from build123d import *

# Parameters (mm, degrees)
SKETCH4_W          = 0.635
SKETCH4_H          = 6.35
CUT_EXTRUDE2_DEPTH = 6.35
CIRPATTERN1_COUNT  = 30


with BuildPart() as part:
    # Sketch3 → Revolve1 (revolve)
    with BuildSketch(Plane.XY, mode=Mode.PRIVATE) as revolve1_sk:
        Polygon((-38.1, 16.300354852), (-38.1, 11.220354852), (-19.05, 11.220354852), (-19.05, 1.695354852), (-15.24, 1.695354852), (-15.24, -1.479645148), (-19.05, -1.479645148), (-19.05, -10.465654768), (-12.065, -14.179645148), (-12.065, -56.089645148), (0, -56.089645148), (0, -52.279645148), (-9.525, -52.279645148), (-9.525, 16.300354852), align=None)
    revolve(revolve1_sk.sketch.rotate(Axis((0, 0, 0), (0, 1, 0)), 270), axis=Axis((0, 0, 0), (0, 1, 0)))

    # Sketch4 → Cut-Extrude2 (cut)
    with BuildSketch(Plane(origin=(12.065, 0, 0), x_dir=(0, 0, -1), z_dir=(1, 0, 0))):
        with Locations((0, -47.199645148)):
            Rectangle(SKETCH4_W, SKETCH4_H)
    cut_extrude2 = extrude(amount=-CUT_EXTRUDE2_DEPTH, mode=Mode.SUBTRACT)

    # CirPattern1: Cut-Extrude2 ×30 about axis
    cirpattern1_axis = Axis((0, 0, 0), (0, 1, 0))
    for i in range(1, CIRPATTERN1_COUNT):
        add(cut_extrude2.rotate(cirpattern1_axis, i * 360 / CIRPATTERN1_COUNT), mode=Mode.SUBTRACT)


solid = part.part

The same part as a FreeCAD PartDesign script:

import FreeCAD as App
import Part
import Sketcher
from FreeCAD import Vector
Q = App.Units.Quantity

doc = App.newDocument("Part")
body = doc.addObject("PartDesign::Body", "Body")

sketch1 = body.newObject("Sketcher::SketchObject", "Sketch")
sketch1.AttachmentSupport = (doc.getObject("XY_Plane"), [""])
sketch1.MapMode = "FlatFace"
sketch1.addGeometry(Part.LineSegment(Vector(-38.1, 16.300355, 0), Vector(-38.1, 11.220355, 0)), False)
sketch1.addGeometry(Part.LineSegment(Vector(-38.1, 11.220355, 0), Vector(-19.05, 11.220355, 0)), False)
sketch1.addGeometry(Part.LineSegment(Vector(-19.05, 11.220355, 0), Vector(-19.05, 1.695355, 0)), False)
sketch1.addGeometry(Part.LineSegment(Vector(-19.05, 1.695355, 0), Vector(-15.24, 1.695355, 0)), False)
sketch1.addGeometry(Part.LineSegment(Vector(-15.24, 1.695355, 0), Vector(-15.24, -1.479645, 0)), False)
sketch1.addGeometry(Part.LineSegment(Vector(-15.24, -1.479645, 0), Vector(-19.05, -1.479645, 0)), False)
sketch1.addGeometry(Part.LineSegment(Vector(-19.05, -1.479645, 0), Vector(-19.05, -10.465655, 0)), False)
sketch1.addGeometry(Part.LineSegment(Vector(-19.05, -10.465655, 0), Vector(-12.065, -14.179645, 0)), False)
sketch1.addGeometry(Part.LineSegment(Vector(-12.065, -14.179645, 0), Vector(-12.065, -56.089645, 0)), False)
sketch1.addGeometry(Part.LineSegment(Vector(-12.065, -56.089645, 0), Vector(0, -56.089645, 0)), False)
sketch1.addGeometry(Part.LineSegment(Vector(0, -56.089645, 0), Vector(0, -52.279645, 0)), False)
sketch1.addGeometry(Part.LineSegment(Vector(0, -52.279645, 0), Vector(-9.525, -52.279645, 0)), False)
sketch1.addGeometry(Part.LineSegment(Vector(-9.525, -52.279645, 0), Vector(-9.525, 16.300355, 0)), False)
sketch1.addGeometry(Part.LineSegment(Vector(-9.525, 16.300355, 0), Vector(-38.1, 16.300355, 0)), False)
sketch1.addConstraint(Sketcher.Constraint("Coincident", 0, 2, 1, 1))
sketch1.addConstraint(Sketcher.Constraint("Coincident", 1, 2, 2, 1))
sketch1.addConstraint(Sketcher.Constraint("Coincident", 2, 2, 3, 1))
sketch1.addConstraint(Sketcher.Constraint("Coincident", 3, 2, 4, 1))
sketch1.addConstraint(Sketcher.Constraint("Coincident", 4, 2, 5, 1))
sketch1.addConstraint(Sketcher.Constraint("Coincident", 5, 2, 6, 1))
sketch1.addConstraint(Sketcher.Constraint("Coincident", 6, 2, 7, 1))
sketch1.addConstraint(Sketcher.Constraint("Coincident", 7, 2, 8, 1))
sketch1.addConstraint(Sketcher.Constraint("Coincident", 8, 2, 9, 1))
sketch1.addConstraint(Sketcher.Constraint("Coincident", 9, 2, 10, 1))
sketch1.addConstraint(Sketcher.Constraint("Coincident", 10, 2, 11, 1))
sketch1.addConstraint(Sketcher.Constraint("Coincident", 11, 2, 12, 1))
sketch1.addConstraint(Sketcher.Constraint("Coincident", 12, 2, 13, 1))
sketch1.addConstraint(Sketcher.Constraint("Coincident", 13, 2, 0, 1))
sketch1.addConstraint(Sketcher.Constraint("Vertical", 0))
sketch1.addConstraint(Sketcher.Constraint("Horizontal", 1))
sketch1.addConstraint(Sketcher.Constraint("Vertical", 2))
sketch1.addConstraint(Sketcher.Constraint("Horizontal", 3))
sketch1.addConstraint(Sketcher.Constraint("Vertical", 4))
sketch1.addConstraint(Sketcher.Constraint("Horizontal", 5))
sketch1.addConstraint(Sketcher.Constraint("Vertical", 6))
sketch1.addConstraint(Sketcher.Constraint("Vertical", 8))
sketch1.addConstraint(Sketcher.Constraint("Horizontal", 9))
sketch1.addConstraint(Sketcher.Constraint("Vertical", 10))
sketch1.addConstraint(Sketcher.Constraint("Horizontal", 11))
sketch1.addConstraint(Sketcher.Constraint("Vertical", 12))
sketch1.addConstraint(Sketcher.Constraint("Horizontal", 13))
sketch1.addConstraint(Sketcher.Constraint("PointOnObject", 9, 2, -2))
sketch1.addConstraint(Sketcher.Constraint("Vertical", 2, 2, 5, 2))
sketch1.addConstraint(Sketcher.Constraint("Equal", 11, 2))
sketch1.addConstraint(Sketcher.Constraint("Equal", 5, 10))
sketch1.addConstraint(Sketcher.Constraint("DistanceY", 0, 2, 0, 1, Q("0.2 in")))
sketch1.addConstraint(Sketcher.Constraint("DistanceY", 12, 1, 12, 2, Q("2.7 in")))
sketch1.addConstraint(Sketcher.Constraint("Angle", 7, Q("-28 deg")))
sketch1.addConstraint(Sketcher.Constraint("DistanceY", 10, 2, 4, 2, Q("2 in")))
sketch1.addConstraint(Sketcher.Constraint("DistanceX", 1, 1, 1, 2, Q("0.75 in")))
sketch1.addConstraint(Sketcher.Constraint("DistanceX", 3, 1, 3, 2, Q("0.15 in")))
sketch1.addConstraint(Sketcher.Constraint("DistanceY", 8, 2, 8, 1, Q("1.65 in")))
sketch1.addConstraint(Sketcher.Constraint("DistanceX", 0, 2, -1, 1, Q("1.5 in")))
sketch1.addConstraint(Sketcher.Constraint("DistanceX", 8, 2, 11, 2, Q("0.1 in")))
sketch1.addConstraint(Sketcher.Constraint("DistanceX", 9, 1, 9, 2, Q("0.475 in")))
sketch1.addConstraint(Sketcher.Constraint("DistanceY", -1, 1, 0, 2, 11.220355))
revolution = body.newObject("PartDesign::Revolution", "Revolution")
revolution.Profile = sketch1
revolution.ReferenceAxis = (sketch1, ["V_Axis"])
revolution.Angle = 360

sketch2 = body.newObject("Sketcher::SketchObject", "Sketch001")
sketch2.AttachmentSupport = (doc.getObject("YZ_Plane"), [""])
sketch2.MapMode = "FlatFace"
sketch2.AttachmentOffset = App.Placement(Vector(0, 0, 0.475 * 25.4), App.Rotation())
sketch2.addGeometry(Part.LineSegment(Vector(-44.024645, 0.3175, 0), Vector(-50.374645, 0.3175, 0)), False)
sketch2.addGeometry(Part.LineSegment(Vector(-50.374645, 0.3175, 0), Vector(-50.374645, -0.3175, 0)), False)
sketch2.addGeometry(Part.LineSegment(Vector(-50.374645, -0.3175, 0), Vector(-44.024645, -0.3175, 0)), False)
sketch2.addGeometry(Part.LineSegment(Vector(-44.024645, -0.3175, 0), Vector(-44.024645, 0.3175, 0)), False)
sketch2.addConstraint(Sketcher.Constraint("Coincident", 0, 2, 1, 1))
sketch2.addConstraint(Sketcher.Constraint("Coincident", 1, 2, 2, 1))
sketch2.addConstraint(Sketcher.Constraint("Coincident", 2, 2, 3, 1))
sketch2.addConstraint(Sketcher.Constraint("Coincident", 3, 2, 0, 1))
sketch2.addConstraint(Sketcher.Constraint("Horizontal", 0))
sketch2.addConstraint(Sketcher.Constraint("Vertical", 1))
sketch2.addConstraint(Sketcher.Constraint("Horizontal", 2))
sketch2.addConstraint(Sketcher.Constraint("Vertical", 3))
sketch2.addConstraint(Sketcher.Constraint("DistanceX", 0, 2, 0, 1, Q("0.25 in")))
sketch2.addConstraint(Sketcher.Constraint("DistanceY", 1, 2, 1, 1, Q("0.025 in")))
sketch2.addConstraint(Sketcher.Constraint("DistanceY", -1, 1, 0, 2, Q("0.0125 in")))
sketch2.addConstraint(Sketcher.Constraint("DistanceX", 0, 2, -1, 1, 50.374645))
pocket1 = body.newObject("PartDesign::Pocket", "Pocket")
pocket1.Profile = sketch2
pocket1.Length = Q("0.25 in")
doc.recompute()

polarpattern = body.newObject("PartDesign::PolarPattern", "PolarPattern")
polarpattern.Originals = [pocket1]
polarpattern.Axis = (doc.getObject("Y_Axis"), [""])
polarpattern.Angle = 360
polarpattern.Occurrences = 30
body.Tip = polarpattern

doc.recompute()
